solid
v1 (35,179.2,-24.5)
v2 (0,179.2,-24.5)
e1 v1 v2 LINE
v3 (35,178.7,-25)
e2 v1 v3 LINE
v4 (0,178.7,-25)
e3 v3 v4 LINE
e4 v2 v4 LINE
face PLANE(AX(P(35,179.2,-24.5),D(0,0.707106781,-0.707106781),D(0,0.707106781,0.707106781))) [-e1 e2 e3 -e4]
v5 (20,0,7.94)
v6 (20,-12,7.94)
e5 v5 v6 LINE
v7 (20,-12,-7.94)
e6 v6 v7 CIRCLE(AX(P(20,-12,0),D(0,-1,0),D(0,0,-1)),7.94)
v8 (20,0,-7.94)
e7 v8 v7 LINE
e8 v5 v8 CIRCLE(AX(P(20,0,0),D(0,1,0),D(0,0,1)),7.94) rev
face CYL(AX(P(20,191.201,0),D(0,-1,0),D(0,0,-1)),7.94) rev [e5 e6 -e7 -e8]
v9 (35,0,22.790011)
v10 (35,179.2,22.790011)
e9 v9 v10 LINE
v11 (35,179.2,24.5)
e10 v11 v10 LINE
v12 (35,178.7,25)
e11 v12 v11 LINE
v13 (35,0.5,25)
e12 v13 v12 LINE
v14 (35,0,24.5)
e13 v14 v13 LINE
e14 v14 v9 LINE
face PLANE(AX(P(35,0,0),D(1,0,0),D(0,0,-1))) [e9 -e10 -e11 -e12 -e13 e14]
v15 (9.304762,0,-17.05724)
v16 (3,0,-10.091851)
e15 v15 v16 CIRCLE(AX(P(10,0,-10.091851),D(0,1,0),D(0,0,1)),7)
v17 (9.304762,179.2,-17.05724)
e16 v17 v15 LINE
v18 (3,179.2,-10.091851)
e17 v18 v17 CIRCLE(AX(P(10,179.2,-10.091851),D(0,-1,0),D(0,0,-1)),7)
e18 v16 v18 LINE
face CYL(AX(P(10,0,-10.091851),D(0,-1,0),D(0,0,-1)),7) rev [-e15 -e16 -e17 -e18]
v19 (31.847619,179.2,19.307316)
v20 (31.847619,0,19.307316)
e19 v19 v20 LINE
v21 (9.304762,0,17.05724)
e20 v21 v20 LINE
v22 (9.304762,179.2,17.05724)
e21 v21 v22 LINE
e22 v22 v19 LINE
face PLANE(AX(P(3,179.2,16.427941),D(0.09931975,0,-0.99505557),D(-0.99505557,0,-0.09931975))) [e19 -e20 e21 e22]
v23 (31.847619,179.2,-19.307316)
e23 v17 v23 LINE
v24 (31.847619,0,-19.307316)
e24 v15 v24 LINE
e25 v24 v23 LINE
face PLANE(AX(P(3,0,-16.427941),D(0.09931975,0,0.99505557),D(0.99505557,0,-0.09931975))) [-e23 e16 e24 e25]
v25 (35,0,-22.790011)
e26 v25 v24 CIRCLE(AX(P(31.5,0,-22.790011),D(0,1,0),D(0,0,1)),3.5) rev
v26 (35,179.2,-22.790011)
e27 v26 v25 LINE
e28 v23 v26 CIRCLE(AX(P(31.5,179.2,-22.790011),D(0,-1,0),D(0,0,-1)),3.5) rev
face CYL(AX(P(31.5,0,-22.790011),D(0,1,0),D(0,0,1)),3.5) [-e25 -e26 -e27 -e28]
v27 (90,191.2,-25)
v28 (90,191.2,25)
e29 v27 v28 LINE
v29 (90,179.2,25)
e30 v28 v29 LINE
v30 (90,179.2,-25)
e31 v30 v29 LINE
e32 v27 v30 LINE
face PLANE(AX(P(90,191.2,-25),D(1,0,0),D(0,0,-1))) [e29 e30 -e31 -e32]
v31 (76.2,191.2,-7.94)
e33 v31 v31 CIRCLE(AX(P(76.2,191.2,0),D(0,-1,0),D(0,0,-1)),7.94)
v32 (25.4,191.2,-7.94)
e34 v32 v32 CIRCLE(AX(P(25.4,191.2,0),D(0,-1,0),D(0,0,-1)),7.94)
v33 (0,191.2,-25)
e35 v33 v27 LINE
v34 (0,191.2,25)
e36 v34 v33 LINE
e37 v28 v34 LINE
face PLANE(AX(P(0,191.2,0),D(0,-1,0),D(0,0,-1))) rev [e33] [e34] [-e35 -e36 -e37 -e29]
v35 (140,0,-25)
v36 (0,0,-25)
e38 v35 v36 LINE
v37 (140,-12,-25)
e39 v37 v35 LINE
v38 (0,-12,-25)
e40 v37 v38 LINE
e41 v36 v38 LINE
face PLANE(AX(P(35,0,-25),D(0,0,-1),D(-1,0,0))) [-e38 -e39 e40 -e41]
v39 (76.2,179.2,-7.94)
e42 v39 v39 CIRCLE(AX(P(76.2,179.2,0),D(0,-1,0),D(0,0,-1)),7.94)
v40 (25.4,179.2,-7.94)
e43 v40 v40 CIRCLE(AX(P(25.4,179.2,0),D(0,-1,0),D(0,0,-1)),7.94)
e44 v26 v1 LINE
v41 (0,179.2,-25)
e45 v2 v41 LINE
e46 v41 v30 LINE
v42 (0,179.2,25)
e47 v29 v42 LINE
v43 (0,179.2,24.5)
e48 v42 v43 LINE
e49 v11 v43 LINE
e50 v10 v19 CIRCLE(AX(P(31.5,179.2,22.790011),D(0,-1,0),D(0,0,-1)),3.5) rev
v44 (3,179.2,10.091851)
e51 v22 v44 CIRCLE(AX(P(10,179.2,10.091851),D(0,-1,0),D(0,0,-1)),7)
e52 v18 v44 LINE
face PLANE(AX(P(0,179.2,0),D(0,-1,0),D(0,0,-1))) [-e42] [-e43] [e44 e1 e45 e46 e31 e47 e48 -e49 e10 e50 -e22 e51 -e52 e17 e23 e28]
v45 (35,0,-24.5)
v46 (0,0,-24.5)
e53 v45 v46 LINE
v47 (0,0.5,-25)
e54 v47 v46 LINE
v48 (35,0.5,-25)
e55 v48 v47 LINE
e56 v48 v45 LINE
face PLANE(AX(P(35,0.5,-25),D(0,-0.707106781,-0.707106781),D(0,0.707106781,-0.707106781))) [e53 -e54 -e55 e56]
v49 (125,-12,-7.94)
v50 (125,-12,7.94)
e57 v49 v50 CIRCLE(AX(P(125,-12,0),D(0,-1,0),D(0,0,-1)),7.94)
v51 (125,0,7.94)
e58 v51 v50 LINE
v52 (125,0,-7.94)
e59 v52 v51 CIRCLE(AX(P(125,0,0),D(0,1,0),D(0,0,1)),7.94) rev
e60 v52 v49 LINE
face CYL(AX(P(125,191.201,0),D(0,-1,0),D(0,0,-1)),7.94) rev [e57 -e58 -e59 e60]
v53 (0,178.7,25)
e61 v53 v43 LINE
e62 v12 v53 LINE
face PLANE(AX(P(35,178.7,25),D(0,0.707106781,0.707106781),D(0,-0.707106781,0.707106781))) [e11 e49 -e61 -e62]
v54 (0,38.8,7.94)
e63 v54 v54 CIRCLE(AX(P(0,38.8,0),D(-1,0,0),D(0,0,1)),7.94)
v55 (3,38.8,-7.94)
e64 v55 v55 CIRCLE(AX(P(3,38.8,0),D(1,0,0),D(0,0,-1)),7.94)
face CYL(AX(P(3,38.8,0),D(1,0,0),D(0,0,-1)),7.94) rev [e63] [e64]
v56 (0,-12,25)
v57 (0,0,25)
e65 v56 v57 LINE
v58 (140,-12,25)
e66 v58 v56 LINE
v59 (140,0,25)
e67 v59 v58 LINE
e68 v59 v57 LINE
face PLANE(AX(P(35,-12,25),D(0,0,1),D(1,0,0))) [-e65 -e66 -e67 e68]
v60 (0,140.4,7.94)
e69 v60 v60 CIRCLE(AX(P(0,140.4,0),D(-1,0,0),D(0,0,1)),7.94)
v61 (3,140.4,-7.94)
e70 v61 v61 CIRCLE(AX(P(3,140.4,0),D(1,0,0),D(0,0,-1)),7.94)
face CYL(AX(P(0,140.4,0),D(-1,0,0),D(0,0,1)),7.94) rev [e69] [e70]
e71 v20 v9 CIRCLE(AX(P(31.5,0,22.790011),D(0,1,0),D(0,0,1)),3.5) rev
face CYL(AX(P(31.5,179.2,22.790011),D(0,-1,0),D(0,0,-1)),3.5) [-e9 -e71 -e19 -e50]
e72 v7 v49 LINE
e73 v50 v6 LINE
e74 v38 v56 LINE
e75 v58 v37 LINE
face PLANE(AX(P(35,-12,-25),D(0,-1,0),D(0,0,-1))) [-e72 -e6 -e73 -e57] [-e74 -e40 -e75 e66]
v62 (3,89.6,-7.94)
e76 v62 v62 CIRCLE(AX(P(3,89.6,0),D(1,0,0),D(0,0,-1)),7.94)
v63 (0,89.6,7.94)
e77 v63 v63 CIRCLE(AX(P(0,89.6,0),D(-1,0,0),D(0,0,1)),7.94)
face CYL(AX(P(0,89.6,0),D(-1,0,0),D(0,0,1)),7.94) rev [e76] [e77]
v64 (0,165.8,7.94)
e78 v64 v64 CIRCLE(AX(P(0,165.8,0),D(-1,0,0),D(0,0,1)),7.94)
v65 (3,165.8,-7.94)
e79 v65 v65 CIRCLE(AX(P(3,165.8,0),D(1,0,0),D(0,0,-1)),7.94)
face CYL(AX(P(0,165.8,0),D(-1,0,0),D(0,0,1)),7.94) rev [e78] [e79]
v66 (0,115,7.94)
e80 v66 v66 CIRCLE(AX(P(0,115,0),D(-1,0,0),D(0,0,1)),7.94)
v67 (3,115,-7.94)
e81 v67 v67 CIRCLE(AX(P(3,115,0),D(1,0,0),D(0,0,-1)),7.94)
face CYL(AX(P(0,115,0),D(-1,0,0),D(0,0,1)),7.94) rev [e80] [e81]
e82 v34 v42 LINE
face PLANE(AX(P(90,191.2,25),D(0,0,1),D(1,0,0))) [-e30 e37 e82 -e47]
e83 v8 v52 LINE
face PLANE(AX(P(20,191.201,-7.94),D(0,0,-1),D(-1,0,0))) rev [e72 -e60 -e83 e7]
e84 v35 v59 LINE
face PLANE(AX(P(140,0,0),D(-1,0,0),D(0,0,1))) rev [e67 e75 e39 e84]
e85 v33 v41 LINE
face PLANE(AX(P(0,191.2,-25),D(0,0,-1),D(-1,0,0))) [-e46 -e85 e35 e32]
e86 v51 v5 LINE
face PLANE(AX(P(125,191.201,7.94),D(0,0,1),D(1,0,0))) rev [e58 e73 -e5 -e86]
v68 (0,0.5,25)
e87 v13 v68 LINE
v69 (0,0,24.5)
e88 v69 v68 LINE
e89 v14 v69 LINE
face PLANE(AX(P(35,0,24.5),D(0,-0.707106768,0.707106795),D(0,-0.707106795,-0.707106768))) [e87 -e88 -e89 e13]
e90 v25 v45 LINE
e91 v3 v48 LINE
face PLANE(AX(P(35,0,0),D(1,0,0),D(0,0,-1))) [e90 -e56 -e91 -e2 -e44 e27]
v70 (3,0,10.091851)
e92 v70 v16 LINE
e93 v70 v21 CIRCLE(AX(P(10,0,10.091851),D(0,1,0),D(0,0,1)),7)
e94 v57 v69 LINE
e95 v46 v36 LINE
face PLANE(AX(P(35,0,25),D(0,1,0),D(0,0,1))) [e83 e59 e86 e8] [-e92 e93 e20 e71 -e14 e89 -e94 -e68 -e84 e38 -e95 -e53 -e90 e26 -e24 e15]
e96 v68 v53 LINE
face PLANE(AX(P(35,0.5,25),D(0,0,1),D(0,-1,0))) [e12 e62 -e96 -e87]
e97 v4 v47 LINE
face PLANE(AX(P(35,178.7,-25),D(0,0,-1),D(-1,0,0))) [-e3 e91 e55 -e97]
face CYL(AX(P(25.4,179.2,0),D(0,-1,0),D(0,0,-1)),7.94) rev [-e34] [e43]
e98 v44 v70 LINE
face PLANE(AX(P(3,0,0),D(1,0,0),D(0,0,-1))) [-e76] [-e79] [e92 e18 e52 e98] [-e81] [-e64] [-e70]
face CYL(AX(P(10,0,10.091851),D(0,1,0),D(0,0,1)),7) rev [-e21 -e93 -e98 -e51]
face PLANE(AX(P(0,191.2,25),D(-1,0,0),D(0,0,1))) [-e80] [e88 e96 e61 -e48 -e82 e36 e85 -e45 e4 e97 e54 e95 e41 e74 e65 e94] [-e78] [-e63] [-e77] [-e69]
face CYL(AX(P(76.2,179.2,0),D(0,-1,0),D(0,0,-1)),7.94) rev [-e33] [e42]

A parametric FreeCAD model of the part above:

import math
import FreeCAD as App
import Part
import Sketcher
Q = App.Units.Quantity


def edges_at(feature, points):
    """Names of the edges that pass closest to the given points."""
    edges = feature.Shape.Edges
    near = lambda p: min(range(len(edges)), key=lambda i: edges[i].distToShape(Part.Vertex(*p))[0])
    return sorted({f"Edge{near(p) + 1}" for p in points})


def faces_at(feature, points):
    """Names of the faces that lie closest to the given points."""
    faces = feature.Shape.Faces
    near = lambda p: min(range(len(faces)), key=lambda i: faces[i].distToShape(Part.Vertex(*p))[0])
    return sorted({f"Face{near(p) + 1}" for p in points})


def add_polygon(sketch, points):
    """Adds a closed chain of lines whose ends are joined by coincident constraints."""
    first, n = sketch.GeometryCount, len(points)
    for a, b in zip(points, points[1:] + points[:1]):
        sketch.addGeometry(Part.LineSegment(App.Vector(*a, 0), App.Vector(*b, 0)), False)
    for i in range(n):
        sketch.addConstraint(Sketcher.Constraint("Coincident", first + i, 2, first + (i + 1) % n, 1))

doc = App.newDocument("Part")
body = doc.addObject("PartDesign::Body", "Body")

sketch1 = doc.addObject("Sketcher::SketchObject", "Sketch")
body.addObject(sketch1)
sketch1.AttachmentSupport = (doc.XZ_Plane, [""])
sketch1.MapMode = "FlatFace"
sketch1.AttachmentOffset = App.Placement(App.Vector(0, 0, -179.2), App.Rotation())
add_polygon(sketch1, [(0, 25), (0, -25), (90, -25), (90, 25)])
sketch1.addConstraint([
    Sketcher.Constraint("Vertical", 0),
    Sketcher.Constraint("Horizontal", 1),
    Sketcher.Constraint("Vertical", 2),
    Sketcher.Constraint("Horizontal", 3),
    Sketcher.Constraint("Symmetric", 0, 2, 3, 2, -1, 1),
    Sketcher.Constraint("DistanceX", 1, 1, 1, 2, Q("90 mm")),
    Sketcher.Constraint("DistanceY", 0, 2, 0, 1, Q("50 mm")),
])
pad1 = doc.addObject("PartDesign::Pad", "Pad")
body.addObject(pad1)
pad1.Profile = sketch1
pad1.Length = 12
pad1.Reversed = True

sketch2 = doc.addObject("Sketcher::SketchObject", "Sketch001")
body.addObject(sketch2)
sketch2.AttachmentSupport = (doc.YZ_Plane, [""])
sketch2.MapMode = "FlatFace"
add_polygon(sketch2, [(0.5, -25), (0, -24.5), (0, -25), (-12, -25), (-12, 25), (0, 25), (0, 24.5), (0.5, 25), (178.7, 25), (179.2, 24.5), (179.2, -24.5), (178.7, -25)])
sketch2.addConstraint([
    Sketcher.Constraint("Vertical", 1),
    Sketcher.Constraint("Horizontal", 2),
    Sketcher.Constraint("Vertical", 3),
    Sketcher.Constraint("Horizontal", 4),
    Sketcher.Constraint("Vertical", 5),
    Sketcher.Constraint("Horizontal", 7),
    Sketcher.Constraint("Vertical", 9),
    Sketcher.Constraint("Horizontal", 11),
    Sketcher.Constraint("Symmetric", 1, 2, 4, 2, -1, 1),
    Sketcher.Constraint("Symmetric", 0, 2, 5, 2, -1),
    Sketcher.Constraint("Symmetric", 7, 2, 10, 2, -1),
    Sketcher.Constraint("Perpendicular", 0, 6),
    Sketcher.Constraint("Perpendicular", 6, 8),
    Sketcher.Constraint("Perpendicular", 8, 10),
    Sketcher.Constraint("Horizontal", 4, 2, 6, 2),
    Sketcher.Constraint("Horizontal", 5, 2, 8, 2),
    Sketcher.Constraint("Horizontal", 0, 2, 9, 2),
    Sketcher.Constraint("DistanceX", 2, 2, 2, 1, Q("12 mm")),
    Sketcher.Constraint("DistanceY", 3, 1, 3, 2, Q("50 mm")),
    Sketcher.Constraint("DistanceY", 9, 2, 9, 1, Q("49 mm")),
    Sketcher.Constraint("DistanceX", 7, 1, 7, 2, Q("178.2 mm")),
])
pad2 = doc.addObject("PartDesign::Pad", "Pad001")
body.addObject(pad2)
pad2.Profile = sketch2
pad2.Length = 35

sketch3 = doc.addObject("Sketcher::SketchObject", "Sketch002")
body.addObject(sketch3)
sketch3.AttachmentSupport = (doc.YZ_Plane, [""])
sketch3.MapMode = "FlatFace"
sketch3.AttachmentOffset = App.Placement(App.Vector(0, 0, 35), App.Rotation())
add_polygon(sketch3, [(0, 25), (-12, 25), (-12, -25), (0, -25)])
sketch3.addConstraint([
    Sketcher.Constraint("Horizontal", 0),
    Sketcher.Constraint("Vertical", 1),
    Sketcher.Constraint("Horizontal", 2),
    Sketcher.Constraint("Vertical", 3),
    Sketcher.Constraint("Symmetric", 2, 2, 3, 2, -1, 1),
    Sketcher.Constraint("DistanceX", 0, 2, 0, 1, Q("12 mm")),
    Sketcher.Constraint("DistanceY", 1, 2, 1, 1, Q("50 mm")),
])
pad3 = doc.addObject("PartDesign::Pad", "Pad002")
body.addObject(pad3)
pad3.Profile = sketch3
pad3.Length = 105

sketch4 = doc.addObject("Sketcher::SketchObject", "Sketch003")
body.addObject(sketch4)
sketch4.AttachmentSupport = (doc.YZ_Plane, [""])
sketch4.MapMode = "FlatFace"
sketch4.AttachmentOffset = App.Placement(App.Vector(0, 0, 35), App.Rotation())
add_polygon(sketch4, [(179, 16), (0, 16), (0, -16), (179, -16)])
sketch4.addConstraint([
    Sketcher.Constraint("Horizontal", 0),
    Sketcher.Constraint("Vertical", 1),
    Sketcher.Constraint("Horizontal", 2),
    Sketcher.Constraint("Vertical", 3),
    Sketcher.Constraint("Symmetric", 0, 2, 1, 2, -1, 1),
    Sketcher.Constraint("DistanceX", 0, 2, 0, 1, Q("179.2 mm")),
    Sketcher.Constraint("DistanceY", 1, 2, 1, 1, Q("32.855882 mm")),
])
pocket1 = doc.addObject("PartDesign::Pocket", "Pocket")
body.addObject(pocket1)
pocket1.Profile = sketch4
pocket1.Length = 32

sketch5 = doc.addObject("Sketcher::SketchObject", "Sketch004")
body.addObject(sketch5)
sketch5.AttachmentSupport = (doc.XZ_Plane, [""])
sketch5.MapMode = "FlatFace"
sketch5.AttachmentOffset = App.Placement(App.Vector(0, 0, 12), App.Rotation())
sketch5.addGeometry([
    Part.LineSegment(App.Vector(125, 8, 0), App.Vector(20, 8, 0)),
    Part.ArcOfCircle(Part.Circle(App.Vector(20, 0, 0), App.Vector(0, 0, 1), 8), math.radians(90), math.radians(270)),
    Part.LineSegment(App.Vector(20, -8, 0), App.Vector(125, -8, 0)),
    Part.ArcOfCircle(Part.Circle(App.Vector(125, 0, 0), App.Vector(0, 0, 1), 8), math.radians(-90), math.radians(90)),
], False)
sketch5.addConstraint([
    Sketcher.Constraint("Tangent", 0, 2, 1, 1),
    Sketcher.Constraint("Tangent", 1, 2, 2, 1),
    Sketcher.Constraint("Tangent", 2, 2, 3, 1),
    Sketcher.Constraint("Tangent", 3, 2, 0, 1),
    Sketcher.Constraint("Horizontal", 0),
    Sketcher.Constraint("Horizontal", 2),
    Sketcher.Constraint("PointOnObject", 1, 3, -1),
    Sketcher.Constraint("DistanceX", 0, 2, 0, 1, Q("105 mm")),
    Sketcher.Constraint("Radius", 1, Q("7.94 mm")),
    Sketcher.Constraint("DistanceX", -1, 1, 1, 3, Q("20 mm")),
])
pocket2 = doc.addObject("PartDesign::Pocket", "Pocket001")
body.addObject(pocket2)
pocket2.Profile = sketch5
pocket2.Type = "UpToFirst"
doc.recompute()

datumplane = doc.addObject("PartDesign::Plane", "DatumPlane")
body.addObject(datumplane)
datumplane.AttachmentSupport = (doc.YZ_Plane, [""])
datumplane.MapMode = "FlatFace"
datumplane.AttachmentOffset = App.Placement(App.Vector(0, 0, 3), App.Rotation())
draft = doc.addObject("PartDesign::Draft", "Draft")
body.addObject(draft)
draft.Base = (pocket2, faces_at(pocket2, [(19, 89.6, -16.428), (19, 89.6, 16.428)]))
draft.NeutralPlane = (datumplane, [""])
draft.Angle = 5.7
draft.Reversed = False

sketch6 = doc.addObject("Sketcher::SketchObject", "Sketch005")
body.addObject(sketch6)
sketch6.AttachmentSupport = (doc.YZ_Plane, [""])
sketch6.MapMode = "FlatFace"
sketch6.AttachmentOffset = App.Placement(App.Vector(0, 0, 3), App.Rotation())
sketch6.addGeometry(Part.Circle(App.Vector(39, 0, 0), App.Vector(0, 0, 1), 8), False)
sketch6.addConstraint([
    Sketcher.Constraint("PointOnObject", 0, 3, -1),
    Sketcher.Constraint("Diameter", 0, Q("15.88 mm")),
    Sketcher.Constraint("DistanceX", -1, 1, 0, 3, Q("38.8 mm")),
])
doc.recompute()
hole = doc.addObject("PartDesign::Hole", "Hole")
body.addObject(hole)
hole.Profile = sketch6
hole.ThreadType = "None"
hole.Diameter = 15.88
hole.DepthType = "ThroughAll"

sketch7 = doc.addObject("Sketcher::SketchObject", "Sketch006")
body.addObject(sketch7)
sketch7.AttachmentSupport = (doc.YZ_Plane, [""])
sketch7.MapMode = "FlatFace"
sketch7.addGeometry([
    Part.Circle(App.Vector(90, 0, 0), App.Vector(0, 0, 1), 8),
    Part.Circle(App.Vector(115, 0, 0), App.Vector(0, 0, 1), 8),
    Part.Circle(App.Vector(140, 0, 0), App.Vector(0, 0, 1), 8),
    Part.Circle(App.Vector(166, 0, 0), App.Vector(0, 0, 1), 8),
], False)
sketch7.addConstraint([
    Sketcher.Constraint("Equal", 0, 1),
    Sketcher.Constraint("Equal", 1, 2),
    Sketcher.Constraint("Equal", 2, 3),
    Sketcher.Constraint("PointOnObject", 0, 3, -1),
    Sketcher.Constraint("PointOnObject", 1, 3, -1),
    Sketcher.Constraint("PointOnObject", 2, 3, -1),
    Sketcher.Constraint("PointOnObject", 3, 3, -1),
    Sketcher.Constraint("Diameter", 0, Q("15.88 mm")),
    Sketcher.Constraint("DistanceX", -1, 1, 1, 3, Q("115 mm")),
    Sketcher.Constraint("DistanceX", -1, 1, 0, 3, Q("89.6 mm")),
    Sketcher.Constraint("DistanceX", -1, 1, 2, 3, Q("140.4 mm")),
    Sketcher.Constraint("DistanceX", -1, 1, 3, 3, Q("165.8 mm")),
])
doc.recompute()
hole2 = doc.addObject("PartDesign::Hole", "Hole001")
body.addObject(hole2)
hole2.Profile = sketch7
hole2.ThreadType = "None"
hole2.Diameter = 15.88
hole2.DepthType = "Dimension"
hole2.Depth = 140
hole2.DrillPoint = "Flat"
hole2.Reversed = True

sketch8 = doc.addObject("Sketcher::SketchObject", "Sketch007")
body.addObject(sketch8)
sketch8.AttachmentSupport = (doc.XZ_Plane, [""])
sketch8.MapMode = "FlatFace"
sketch8.AttachmentOffset = App.Placement(App.Vector(0, 0, -179.2), App.Rotation())
sketch8.addGeometry([
    Part.Circle(App.Vector(76, 0, 0), App.Vector(0, 0, 1), 8),
    Part.Circle(App.Vector(25, 0, 0), App.Vector(0, 0, 1), 8),
], False)
sketch8.addConstraint([
    Sketcher.Constraint("Equal", 0, 1),
    Sketcher.Constraint("PointOnObject", 0, 3, -1),
    Sketcher.Constraint("PointOnObject", 1, 3, -1),
    Sketcher.Constraint("Diameter", 0, Q("15.88 mm")),
    Sketcher.Constraint("DistanceX", -1, 1, 0, 3, Q("76.2 mm")),
    Sketcher.Constraint("DistanceX", -1, 1, 1, 3, Q("25.4 mm")),
])
doc.recompute()
hole3 = doc.addObject("PartDesign::Hole", "Hole002")
body.addObject(hole3)
hole3.Profile = sketch8
hole3.ThreadType = "None"
hole3.Diameter = 15.88
hole3.DepthType = "ThroughAll"
doc.recompute()

fillet = doc.addObject("PartDesign::Fillet", "Fillet")
body.addObject(fillet)
fillet.Base = (hole3, edges_at(hole3, [(35, 89.6, 19.622), (35, 89.6, -19.622)]))
fillet.Radius = 3.5
doc.recompute()

fillet2 = doc.addObject("PartDesign::Fillet", "Fillet001")
body.addObject(fillet2)
fillet2.Base = (fillet, edges_at(fillet, [(3, 89.6, 16.428), (3, 89.6, -16.428)]))
fillet2.Radius = 7

doc.recompute()
